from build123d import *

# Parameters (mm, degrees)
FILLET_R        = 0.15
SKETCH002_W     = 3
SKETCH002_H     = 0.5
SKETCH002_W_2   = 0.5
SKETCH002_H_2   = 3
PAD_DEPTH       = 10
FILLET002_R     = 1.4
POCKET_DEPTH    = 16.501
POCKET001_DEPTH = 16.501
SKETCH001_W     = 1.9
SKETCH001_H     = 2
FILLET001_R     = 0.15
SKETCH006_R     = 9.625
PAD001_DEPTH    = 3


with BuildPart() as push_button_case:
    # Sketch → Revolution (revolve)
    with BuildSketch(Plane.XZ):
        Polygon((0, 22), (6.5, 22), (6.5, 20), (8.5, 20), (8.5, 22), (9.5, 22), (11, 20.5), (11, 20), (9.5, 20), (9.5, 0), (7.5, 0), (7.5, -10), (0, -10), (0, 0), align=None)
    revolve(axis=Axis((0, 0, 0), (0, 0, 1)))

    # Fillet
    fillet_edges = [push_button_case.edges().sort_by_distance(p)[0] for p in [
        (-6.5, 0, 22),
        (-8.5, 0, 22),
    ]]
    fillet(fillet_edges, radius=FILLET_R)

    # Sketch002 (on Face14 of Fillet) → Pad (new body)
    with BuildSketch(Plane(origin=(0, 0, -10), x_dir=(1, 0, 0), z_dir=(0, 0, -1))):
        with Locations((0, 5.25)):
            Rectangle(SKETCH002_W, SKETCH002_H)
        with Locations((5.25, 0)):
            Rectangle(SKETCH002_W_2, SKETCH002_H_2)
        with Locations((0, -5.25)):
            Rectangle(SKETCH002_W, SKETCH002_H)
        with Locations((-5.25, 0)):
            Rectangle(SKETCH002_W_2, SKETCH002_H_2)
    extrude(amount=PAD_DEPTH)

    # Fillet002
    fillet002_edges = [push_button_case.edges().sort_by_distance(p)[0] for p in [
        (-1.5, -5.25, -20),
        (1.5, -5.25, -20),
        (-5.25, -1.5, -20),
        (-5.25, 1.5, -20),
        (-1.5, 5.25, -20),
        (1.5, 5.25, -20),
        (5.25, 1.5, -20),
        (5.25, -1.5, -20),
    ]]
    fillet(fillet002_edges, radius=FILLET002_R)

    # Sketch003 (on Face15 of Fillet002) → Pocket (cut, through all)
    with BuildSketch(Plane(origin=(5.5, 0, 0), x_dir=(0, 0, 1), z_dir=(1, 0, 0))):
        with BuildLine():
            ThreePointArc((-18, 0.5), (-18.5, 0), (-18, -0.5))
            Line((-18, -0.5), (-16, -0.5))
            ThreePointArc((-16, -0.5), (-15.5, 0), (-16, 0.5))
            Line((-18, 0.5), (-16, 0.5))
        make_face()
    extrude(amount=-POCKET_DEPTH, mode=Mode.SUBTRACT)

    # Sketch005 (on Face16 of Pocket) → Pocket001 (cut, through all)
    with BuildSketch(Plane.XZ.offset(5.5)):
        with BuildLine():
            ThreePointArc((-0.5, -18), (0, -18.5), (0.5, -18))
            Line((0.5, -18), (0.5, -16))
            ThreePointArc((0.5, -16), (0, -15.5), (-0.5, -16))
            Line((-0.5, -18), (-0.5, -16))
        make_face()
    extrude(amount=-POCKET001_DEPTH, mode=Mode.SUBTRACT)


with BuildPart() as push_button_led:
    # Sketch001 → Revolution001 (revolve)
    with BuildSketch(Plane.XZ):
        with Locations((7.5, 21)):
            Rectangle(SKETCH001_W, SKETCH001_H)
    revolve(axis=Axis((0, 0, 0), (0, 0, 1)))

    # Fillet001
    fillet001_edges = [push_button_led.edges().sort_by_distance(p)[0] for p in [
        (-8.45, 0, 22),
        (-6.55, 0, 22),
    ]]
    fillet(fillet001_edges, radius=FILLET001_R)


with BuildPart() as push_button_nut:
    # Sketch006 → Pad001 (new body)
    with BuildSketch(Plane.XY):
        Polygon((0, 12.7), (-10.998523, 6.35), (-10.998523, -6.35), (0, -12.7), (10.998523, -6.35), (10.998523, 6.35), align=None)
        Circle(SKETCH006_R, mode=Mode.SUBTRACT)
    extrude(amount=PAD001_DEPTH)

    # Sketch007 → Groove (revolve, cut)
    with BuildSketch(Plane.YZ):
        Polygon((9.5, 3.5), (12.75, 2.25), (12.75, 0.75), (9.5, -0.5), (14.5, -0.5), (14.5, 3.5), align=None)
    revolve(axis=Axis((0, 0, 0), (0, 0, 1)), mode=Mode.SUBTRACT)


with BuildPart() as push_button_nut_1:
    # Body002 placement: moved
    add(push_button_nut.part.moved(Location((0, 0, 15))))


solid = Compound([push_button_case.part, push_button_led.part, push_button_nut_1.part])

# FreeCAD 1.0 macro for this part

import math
import FreeCAD as App
import Part
import Sketcher
Q = App.Units.Quantity


def edges_at(feature, points):
    """Names of the edges that pass closest to the given points."""
    edges = feature.Shape.Edges
    near = lambda p: min(range(len(edges)), key=lambda i: edges[i].distToShape(Part.Vertex(*p))[0])
    return sorted({f"Edge{near(p) + 1}" for p in points})

doc = App.newDocument("Part")
params = doc.addObject("Spreadsheet::Sheet", "Params")
for row, (alias, value) in enumerate([
    ("sketch1_width", "2 mm"),
    ("sketch1_width2", "1 mm"),
    ("sketch1_height", "32 mm"),
    ("sketch1_height2", "10 mm"),
    ("sketch1_width3", "6.5 mm"),
    ("revolution_angle", "360 deg"),
    ("fillet_radius", "0.15 mm"),
    ("sketch2_width", "3 mm"),
    ("sketch2_width2", "0.5 mm"),
    ("pad1_length", "10 mm"),
    ("fillet2_radius", "1.4 mm"),
    ("sketch3_radius", "0.5 mm"),
    ("sketch3_height", "2 mm"),
    ("sketch4_radius", "0.5 mm"),
    ("sketch4_height", "2 mm"),
    ("sketch5_height", "2 mm"),
    ("sketch5_width", "1.9 mm"),
    ("revolution2_angle", "360 deg"),
    ("fillet3_radius", "0.15 mm"),
    ("sketch6_diameter", "19.25 mm"),
    ("sketch6_height", "12.7 mm"),
    ("sketch6_length", "12.7 mm"),
    ("pad2_length", "3 mm"),
    ("sketch7_width", "5 mm"),
    ("sketch7_height", "4 mm"),
    ("sketch7_height2", "1.5 mm"),
    ("groove_angle", "360 deg"),
], start=1):
    params.set(f"A{row}", alias)
    params.set(f"B{row}", "=" + value)
    params.setAlias(f"B{row}", alias)

body = doc.addObject("PartDesign::Body", "Body")

# Sketch on XZ plane
sketch1 = body.newObject("Sketcher::SketchObject", "Sketch")
sketch1.AttachmentSupport = (doc.getObject("XZ_Plane"), [""])
sketch1.MapMode = "FlatFace"
sketch1.addGeometry([
    Part.LineSegment(App.Vector(6.5, 22, 0), App.Vector(0, 22, 0)),  # 0
    Part.LineSegment(App.Vector(0, 22, 0), App.Vector(0, -10, 0)),  # 1
    Part.LineSegment(App.Vector(0, -10, 0), App.Vector(7.5, -10, 0)),  # 2
    Part.LineSegment(App.Vector(7.5, -10, 0), App.Vector(7.5, 0, 0)),  # 3
    Part.LineSegment(App.Vector(7.5, 0, 0), App.Vector(9.5, 0, 0)),  # 4
    Part.LineSegment(App.Vector(9.5, 0, 0), App.Vector(9.5, 20, 0)),  # 5
    Part.LineSegment(App.Vector(9.5, 20, 0), App.Vector(11, 20, 0)),  # 6
    Part.LineSegment(App.Vector(11, 20, 0), App.Vector(11, 20.5, 0)),  # 7
    Part.LineSegment(App.Vector(11, 20.5, 0), App.Vector(9.5, 22, 0)),  # 8
    Part.LineSegment(App.Vector(9.5, 22, 0), App.Vector(8.5, 22, 0)),  # 9
    Part.LineSegment(App.Vector(8.5, 22, 0), App.Vector(8.5, 20, 0)),  # 10
    Part.LineSegment(App.Vector(8.5, 20, 0), App.Vector(6.5, 20, 0)),  # 11
    Part.LineSegment(App.Vector(6.5, 20, 0), App.Vector(6.5, 22, 0)),  # 12
], False)
sketch1.addConstraint([
    Sketcher.Constraint("Coincident", 0, 2, 1, 1),
    Sketcher.Constraint("Coincident", 1, 2, 2, 1),
    Sketcher.Constraint("Coincident", 2, 2, 3, 1),
    Sketcher.Constraint("Coincident", 3, 2, 4, 1),
    Sketcher.Constraint("Coincident", 4, 2, 5, 1),
    Sketcher.Constraint("Coincident", 5, 2, 6, 1),
    Sketcher.Constraint("Coincident", 6, 2, 7, 1),
    Sketcher.Constraint("Coincident", 7, 2, 8, 1),
    Sketcher.Constraint("Coincident", 8, 2, 9, 1),
    Sketcher.Constraint("Coincident", 9, 2, 10, 1),
    Sketcher.Constraint("Coincident", 10, 2, 11, 1),
    Sketcher.Constraint("Coincident", 11, 2, 12, 1),
    Sketcher.Constraint("Coincident", 12, 2, 0, 1),
    Sketcher.Constraint("Horizontal", 0),
    Sketcher.Constraint("Vertical", 1),
    Sketcher.Constraint("Horizontal", 2),
    Sketcher.Constraint("Vertical", 3),
    Sketcher.Constraint("Horizontal", 4),
    Sketcher.Constraint("Vertical", 5),
    Sketcher.Constraint("Horizontal", 6),
    Sketcher.Constraint("Vertical", 7),
    Sketcher.Constraint("Horizontal", 9),
    Sketcher.Constraint("Vertical", 10),
    Sketcher.Constraint("Horizontal", 11),
    Sketcher.Constraint("Vertical", 12),
    Sketcher.Constraint("PointOnObject", 0, 2, -2),
    Sketcher.Constraint("PointOnObject", 3, 2, -1),
    Sketcher.Constraint("Horizontal", 0, 2, 8, 2),
    Sketcher.Constraint("Horizontal", 6, 2, 10, 2),
    Sketcher.Constraint("Vertical", 5, 2, 8, 2),
    Sketcher.Constraint("Equal", 4, 11),
    Sketcher.Constraint("Equal", 11, 10),
    Sketcher.Constraint("DistanceX", 4, 1, 4, 2, 2.0),
    Sketcher.Constraint("DistanceX", 9, 2, 9, 1, 1.0),
    Sketcher.Constraint("DistanceY", 1, 2, 1, 1, 32.0),
    Sketcher.Constraint("DistanceY", 3, 1, 3, 2, 10.0),
    Sketcher.Constraint("Angle", 8, Q("135 deg")),
    Sketcher.Constraint("DistanceX", 0, 2, 0, 1, 6.5),
    Sketcher.Constraint("DistanceX", 6, 1, 6, 2, 1.5),
])
sketch1.setExpression("Constraints[32]", "Params.sketch1_width")
sketch1.setExpression("Constraints[33]", "Params.sketch1_width2")
sketch1.setExpression("Constraints[34]", "Params.sketch1_height")
sketch1.setExpression("Constraints[35]", "Params.sketch1_height2")
sketch1.setExpression("Constraints[37]", "Params.sketch1_width3")
revolution = body.newObject("PartDesign::Revolution", "Revolution")
revolution.Profile = sketch1
revolution.ReferenceAxis = (sketch1, ["V_Axis"])
revolution.setExpression("Angle", "Params.revolution_angle")
doc.recompute()

fillet = body.newObject("PartDesign::Fillet", "Fillet")
fillet.Base = (revolution, edges_at(revolution, [(-6.5, 0, 22), (-8.5, 0, 22)]))
fillet.setExpression("Radius", "Params.fillet_radius")

# Sketch on XY plane
sketch2 = body.newObject("Sketcher::SketchObject", "Sketch001")
sketch2.AttachmentSupport = (doc.getObject("XY_Plane"), [""])
sketch2.MapMode = "FlatFace"
sketch2.AttachmentOffset = App.Placement(App.Vector(0, 0, -10), App.Rotation())
sketch2.addGeometry([
    Part.LineSegment(App.Vector(-1.5, -5.5, 0), App.Vector(-1.5, -5, 0)),  # 0
    Part.LineSegment(App.Vector(-1.5, -5, 0), App.Vector(1.5, -5, 0)),  # 1
    Part.LineSegment(App.Vector(1.5, -5, 0), App.Vector(1.5, -5.5, 0)),  # 2
    Part.LineSegment(App.Vector(1.5, -5.5, 0), App.Vector(-1.5, -5.5, 0)),  # 3
    Part.LineSegment(App.Vector(5, -1.5, 0), App.Vector(5, 1.5, 0)),  # 4
    Part.LineSegment(App.Vector(5, 1.5, 0), App.Vector(5.5, 1.5, 0)),  # 5
    Part.LineSegment(App.Vector(5.5, 1.5, 0), App.Vector(5.5, -1.5, 0)),  # 6
    Part.LineSegment(App.Vector(5.5, -1.5, 0), App.Vector(5, -1.5, 0)),  # 7
    Part.LineSegment(App.Vector(-1.5, 5, 0), App.Vector(-1.5, 5.5, 0)),  # 8
    Part.LineSegment(App.Vector(-1.5, 5.5, 0), App.Vector(1.5, 5.5, 0)),  # 9
    Part.LineSegment(App.Vector(1.5, 5.5, 0), App.Vector(1.5, 5, 0)),  # 10
    Part.LineSegment(App.Vector(1.5, 5, 0), App.Vector(-1.5, 5, 0)),  # 11
    Part.LineSegment(App.Vector(-5.5, -1.5, 0), App.Vector(-5.5, 1.5, 0)),  # 12
    Part.LineSegment(App.Vector(-5.5, 1.5, 0), App.Vector(-5, 1.5, 0)),  # 13
    Part.LineSegment(App.Vector(-5, 1.5, 0), App.Vector(-5, -1.5, 0)),  # 14
    Part.LineSegment(App.Vector(-5, -1.5, 0), App.Vector(-5.5, -1.5, 0)),  # 15
], False)
sketch2.addConstraint([
    Sketcher.Constraint("Coincident", 0, 2, 1, 1),
    Sketcher.Constraint("Coincident", 1, 2, 2, 1),
    Sketcher.Constraint("Coincident", 2, 2, 3, 1),
    Sketcher.Constraint("Coincident", 3, 2, 0, 1),
    Sketcher.Constraint("Coincident", 4, 2, 5, 1),
    Sketcher.Constraint("Coincident", 5, 2, 6, 1),
    Sketcher.Constraint("Coincident", 6, 2, 7, 1),
    Sketcher.Constraint("Coincident", 7, 2, 4, 1),
    Sketcher.Constraint("Coincident", 8, 2, 9, 1),
    Sketcher.Constraint("Coincident", 9, 2, 10, 1),
    Sketcher.Constraint("Coincident", 10, 2, 11, 1),
    Sketcher.Constraint("Coincident", 11, 2, 8, 1),
    Sketcher.Constraint("Coincident", 12, 2, 13, 1),
    Sketcher.Constraint("Coincident", 13, 2, 14, 1),
    Sketcher.Constraint("Coincident", 14, 2, 15, 1),
    Sketcher.Constraint("Coincident", 15, 2, 12, 1),
    Sketcher.Constraint("Vertical", 0),
    Sketcher.Constraint("Horizontal", 1),
    Sketcher.Constraint("Vertical", 2),
    Sketcher.Constraint("Horizontal", 3),
    Sketcher.Constraint("Vertical", 4),
    Sketcher.Constraint("Horizontal", 5),
    Sketcher.Constraint("Vertical", 6),
    Sketcher.Constraint("Horizontal", 7),
    Sketcher.Constraint("Vertical", 8),
    Sketcher.Constraint("Horizontal", 9),
    Sketcher.Constraint("Vertical", 10),
    Sketcher.Constraint("Horizontal", 11),
    Sketcher.Constraint("Vertical", 12),
    Sketcher.Constraint("Horizontal", 13),
    Sketcher.Constraint("Vertical", 14),
    Sketcher.Constraint("Horizontal", 15),
    Sketcher.Constraint("Symmetric", 2, 2, 8, 2, -1, 1),
    Sketcher.Constraint("Symmetric", 0, 2, 10, 2, -1, 1),
    Sketcher.Constraint("Symmetric", 6, 2, 12, 2, -1, 1),
    Sketcher.Constraint("Symmetric", 4, 2, 14, 2, -1, 1),
    Sketcher.Constraint("Horizontal", 5, 2, 12, 2),
    Sketcher.Constraint("Vertical", 3, 2, 8, 2),
    Sketcher.Constraint("Equal", 15, 0),
    Sketcher.Constraint("Equal", 11, 4),
    Sketcher.Constraint("DistanceX", 1, 1, 1, 2, 3.0),
    Sketcher.Constraint("DistanceX", 5, 1, 5, 2, 0.5),
    Sketcher.Constraint("DistanceY", 0, 2, -1, 1, 5.0),
    Sketcher.Constraint("DistanceX", -1, 1, 4, 2, 5.0),
])
sketch2.setExpression("Constraints[40]", "Params.sketch2_width")
sketch2.setExpression("Constraints[41]", "Params.sketch2_width2")
pad1 = body.newObject("PartDesign::Pad", "Pad")
pad1.Profile = sketch2
pad1.setExpression("Length", "Params.pad1_length")
pad1.Reversed = True
doc.recompute()

fillet2 = body.newObject("PartDesign::Fillet", "Fillet001")
fillet2.Base = (pad1, edges_at(pad1, [
    (-1.5, -5.25, -20),
    (1.5, -5.25, -20),
    (-5.25, -1.5, -20),
    (-5.25, 1.5, -20),
    (-1.5, 5.25, -20),
    (1.5, 5.25, -20),
    (5.25, 1.5, -20),
    (5.25, -1.5, -20),
]))
fillet2.setExpression("Radius", "Params.fillet2_radius")

# Sketch on YZ plane
sketch3 = body.newObject("Sketcher::SketchObject", "Sketch002")
sketch3.AttachmentSupport = (doc.getObject("YZ_Plane"), [""])
sketch3.MapMode = "FlatFace"
sketch3.AttachmentOffset = App.Placement(App.Vector(0, 0, 5.5), App.Rotation())
sketch3.addGeometry([
    Part.ArcOfCircle(Part.Circle(App.Vector(0, -18, 0), App.Vector(0, 0, 1), 0.5), math.radians(180), math.radians(360)),
    Part.LineSegment(App.Vector(0.5, -18, 0), App.Vector(0.5, -16, 0)),
    Part.ArcOfCircle(Part.Circle(App.Vector(0, -16, 0), App.Vector(0, 0, 1), 0.5), math.radians(0), math.radians(180)),
    Part.LineSegment(App.Vector(-0.5, -16, 0), App.Vector(-0.5, -18, 0)),
], False)
sketch3.addConstraint([
    Sketcher.Constraint("Tangent", 0, 2, 1, 1),
    Sketcher.Constraint("Tangent", 1, 2, 2, 1),
    Sketcher.Constraint("Tangent", 2, 2, 3, 1),
    Sketcher.Constraint("Tangent", 3, 2, 0, 1),
    Sketcher.Constraint("Vertical", 1),
    Sketcher.Constraint("Vertical", 3),
    Sketcher.Constraint("PointOnObject", 0, 3, -2),
    Sketcher.Constraint("Radius", 0, 0.5),
    Sketcher.Constraint("DistanceY", 1, 1, 1, 2, 2.0),
    Sketcher.Constraint("DistanceY", 0, 3, -1, 1, 18.0),
])
sketch3.setExpression("Constraints[7]", "Params.sketch3_radius")
sketch3.setExpression("Constraints[8]", "Params.sketch3_height")
pocket1 = body.newObject("PartDesign::Pocket", "Pocket")
pocket1.Profile = sketch3
pocket1.Type = "ThroughAll"

# Sketch on XZ plane
sketch4 = body.newObject("Sketcher::SketchObject", "Sketch003")
sketch4.AttachmentSupport = (doc.getObject("XZ_Plane"), [""])
sketch4.MapMode = "FlatFace"
sketch4.AttachmentOffset = App.Placement(App.Vector(0, 0, 5.5), App.Rotation())
sketch4.addGeometry([
    Part.ArcOfCircle(Part.Circle(App.Vector(0, -18, 0), App.Vector(0, 0, 1), 0.5), math.radians(180), math.radians(360)),
    Part.LineSegment(App.Vector(0.5, -18, 0), App.Vector(0.5, -16, 0)),
    Part.ArcOfCircle(Part.Circle(App.Vector(0, -16, 0), App.Vector(0, 0, 1), 0.5), math.radians(0), math.radians(180)),
    Part.LineSegment(App.Vector(-0.5, -16, 0), App.Vector(-0.5, -18, 0)),
], False)
sketch4.addConstraint([
    Sketcher.Constraint("Tangent", 0, 2, 1, 1),
    Sketcher.Constraint("Tangent", 1, 2, 2, 1),
    Sketcher.Constraint("Tangent", 2, 2, 3, 1),
    Sketcher.Constraint("Tangent", 3, 2, 0, 1),
    Sketcher.Constraint("Vertical", 1),
    Sketcher.Constraint("Vertical", 3),
    Sketcher.Constraint("PointOnObject", 0, 3, -2),
    Sketcher.Constraint("Radius", 0, 0.5),
    Sketcher.Constraint("DistanceY", 1, 1, 1, 2, 2.0),
    Sketcher.Constraint("DistanceY", 0, 3, -1, 1, 18.0),
])
sketch4.setExpression("Constraints[7]", "Params.sketch4_radius")
sketch4.setExpression("Constraints[8]", "Params.sketch4_height")
pocket2 = body.newObject("PartDesign::Pocket", "Pocket001")
pocket2.Profile = sketch4
pocket2.Type = "ThroughAll"
body2 = doc.addObject("PartDesign::Body", "Body001")

# Sketch on XZ plane
sketch5 = body2.newObject("Sketcher::SketchObject", "Sketch004")
sketch5.AttachmentSupport = (doc.getObject("XZ_Plane001"), [""])
sketch5.MapMode = "FlatFace"
sketch5.addGeometry([
    Part.LineSegment(App.Vector(6.5, 22, 0), App.Vector(6.5, 20, 0)),
    Part.LineSegment(App.Vector(6.5, 20, 0), App.Vector(8.4, 20, 0)),
    Part.LineSegment(App.Vector(8.4, 20, 0), App.Vector(8.4, 22, 0)),
    Part.LineSegment(App.Vector(8.4, 22, 0), App.Vector(6.5, 22, 0)),
], False)
sketch5.addConstraint([
    Sketcher.Constraint("Coincident", 0, 2, 1, 1),
    Sketcher.Constraint("Coincident", 1, 2, 2, 1),
    Sketcher.Constraint("Coincident", 2, 2, 3, 1),
    Sketcher.Constraint("Coincident", 3, 2, 0, 1),
    Sketcher.Constraint("Vertical", 0),
    Sketcher.Constraint("Horizontal", 1),
    Sketcher.Constraint("Vertical", 2),
    Sketcher.Constraint("Horizontal", 3),
    Sketcher.Constraint("DistanceY", 0, 2, 0, 1, 2.0),
    Sketcher.Constraint("DistanceX", 1, 1, 1, 2, 1.9),
    Sketcher.Constraint("DistanceY", -1, 1, 0, 2, 20.0),
    Sketcher.Constraint("DistanceX", -1, 1, 0, 2, 6.55),
])
sketch5.setExpression("Constraints[8]", "Params.sketch5_height")
sketch5.setExpression("Constraints[9]", "Params.sketch5_width")
revolution2 = body2.newObject("PartDesign::Revolution", "Revolution001")
revolution2.Profile = sketch5
revolution2.ReferenceAxis = (sketch5, ["V_Axis"])
revolution2.setExpression("Angle", "Params.revolution2_angle")
doc.recompute()

fillet3 = body2.newObject("PartDesign::Fillet", "Fillet002")
fillet3.Base = (revolution2, edges_at(revolution2, [(-8.45, 0, 22), (-6.55, 0, 22)]))
fillet3.setExpression("Radius", "Params.fillet3_radius")
body3 = doc.addObject("PartDesign::Body", "Body002")

# Sketch on XY plane
sketch6 = body3.newObject("Sketcher::SketchObject", "Sketch005")
sketch6.AttachmentSupport = (doc.getObject("XY_Plane002"), [""])
sketch6.MapMode = "FlatFace"
sketch6.addGeometry([
    Part.LineSegment(App.Vector(0, 13, 0), App.Vector(-11, 6, 0)),  # 0
    Part.LineSegment(App.Vector(-11, 6, 0), App.Vector(-11, -6, 0)),  # 1
    Part.LineSegment(App.Vector(-11, -6, 0), App.Vector(0, -13, 0)),  # 2
    Part.LineSegment(App.Vector(0, -13, 0), App.Vector(11, -6, 0)),  # 3
    Part.LineSegment(App.Vector(11, -6, 0), App.Vector(11, 6, 0)),  # 4
    Part.LineSegment(App.Vector(11, 6, 0), App.Vector(0, 13, 0)),  # 5
    Part.Circle(App.Vector(0, 0, 0), App.Vector(0, 0, 1), 10),  # 6
], False)
sketch6.addConstraint([
    Sketcher.Constraint("Coincident", 0, 2, 1, 1),
    Sketcher.Constraint("Coincident", 1, 2, 2, 1),
    Sketcher.Constraint("Coincident", 2, 2, 3, 1),
    Sketcher.Constraint("Coincident", 3, 2, 4, 1),
    Sketcher.Constraint("Coincident", 4, 2, 5, 1),
    Sketcher.Constraint("Coincident", 5, 2, 0, 1),
    Sketcher.Constraint("Vertical", 1),
    Sketcher.Constraint("Vertical", 4),
    Sketcher.Constraint("Coincident", 6, 3, -1, 1),
    Sketcher.Constraint("Symmetric", 0, 2, 3, 2, -1, 1),
    Sketcher.Constraint("Symmetric", 2, 2, 5, 2, -1, 1),
    Sketcher.Constraint("PointOnObject", 2, 2, -2),
    Sketcher.Constraint("Parallel", 2, 5),
    Sketcher.Constraint("Horizontal", 1, 2, 3, 2),
    Sketcher.Constraint("Diameter", 6, 19.25),
    Sketcher.Constraint("Angle", 0, Q("-150.000001 deg")),
    Sketcher.Constraint("DistanceY", 1, 2, 1, 1, 12.7),
    Sketcher.Constraint("Distance", 0, 12.7),
])
sketch6.setExpression("Constraints[14]", "Params.sketch6_diameter")
sketch6.setExpression("Constraints[16]", "Params.sketch6_height")
sketch6.setExpression("Constraints[17]", "Params.sketch6_length")
pad2 = body3.newObject("PartDesign::Pad", "Pad001")
pad2.Profile = sketch6
pad2.setExpression("Length", "Params.pad2_length")

# Sketch on YZ plane
sketch7 = body3.newObject("Sketcher::SketchObject", "Sketch006")
sketch7.AttachmentSupport = (doc.getObject("YZ_Plane002"), [""])
sketch7.MapMode = "FlatFace"
sketch7.addGeometry([
    Part.LineSegment(App.Vector(9.5, 3.5, 0), App.Vector(12.8, 2.2, 0)),  # 0
    Part.LineSegment(App.Vector(12.8, 2.2, 0), App.Vector(12.8, 0.8, 0)),  # 1
    Part.LineSegment(App.Vector(12.8, 0.8, 0), App.Vector(9.5, -0.5, 0)),  # 2
    Part.LineSegment(App.Vector(9.5, -0.5, 0), App.Vector(14.5, -0.5, 0)),  # 3
    Part.LineSegment(App.Vector(14.5, -0.5, 0), App.Vector(14.5, 3.5, 0)),  # 4
    Part.LineSegment(App.Vector(14.5, 3.5, 0), App.Vector(9.5, 3.5, 0)),  # 5
], False)
sketch7.addConstraint([
    Sketcher.Constraint("Coincident", 0, 2, 1, 1),
    Sketcher.Constraint("Coincident", 1, 2, 2, 1),
    Sketcher.Constraint("Coincident", 2, 2, 3, 1),
    Sketcher.Constraint("Coincident", 3, 2, 4, 1),
    Sketcher.Constraint("Coincident", 4, 2, 5, 1),
    Sketcher.Constraint("Coincident", 5, 2, 0, 1),
    Sketcher.Constraint("Vertical", 1),
    Sketcher.Constraint("Horizontal", 3),
    Sketcher.Constraint("Vertical", 4),
    Sketcher.Constraint("Horizontal", 5),
    Sketcher.Constraint("Vertical", 2, 2, 5, 2),
    Sketcher.Constraint("Equal", 0, 2),
    Sketcher.Constraint("DistanceX", 3, 1, 3, 2, 5.0),
    Sketcher.Constraint("DistanceY", 4, 1, 4, 2, 4.0),
    Sketcher.Constraint("DistanceY", 1, 2, 1, 1, 1.5),
    Sketcher.Constraint("DistanceX", -1, 1, 2, 2, 9.5),
    Sketcher.Constraint("DistanceY", 2, 2, -1, 1, 0.5),
    Sketcher.Constraint("DistanceX", -1, 1, 0, 2, 12.75),
])
sketch7.setExpression("Constraints[12]", "Params.sketch7_width")
sketch7.setExpression("Constraints[13]", "Params.sketch7_height")
sketch7.setExpression("Constraints[14]", "Params.sketch7_height2")
groove = body3.newObject("PartDesign::Groove", "Groove")
groove.Profile = sketch7
groove.ReferenceAxis = (sketch7, ["V_Axis"])
groove.setExpression("Angle", "Params.groove_angle")
body4 = doc.addObject("PartDesign::Body", "Body003")
doc.recompute()

body3.Placement = App.Placement(App.Vector(0, 0, 15), App.Rotation(App.Vector(0, 0, 1), 0))
boolean = body4.newObject("PartDesign::Boolean", "Boolean")
boolean.Type = "Fuse"
boolean.addObjects([body3])

doc.recompute()
